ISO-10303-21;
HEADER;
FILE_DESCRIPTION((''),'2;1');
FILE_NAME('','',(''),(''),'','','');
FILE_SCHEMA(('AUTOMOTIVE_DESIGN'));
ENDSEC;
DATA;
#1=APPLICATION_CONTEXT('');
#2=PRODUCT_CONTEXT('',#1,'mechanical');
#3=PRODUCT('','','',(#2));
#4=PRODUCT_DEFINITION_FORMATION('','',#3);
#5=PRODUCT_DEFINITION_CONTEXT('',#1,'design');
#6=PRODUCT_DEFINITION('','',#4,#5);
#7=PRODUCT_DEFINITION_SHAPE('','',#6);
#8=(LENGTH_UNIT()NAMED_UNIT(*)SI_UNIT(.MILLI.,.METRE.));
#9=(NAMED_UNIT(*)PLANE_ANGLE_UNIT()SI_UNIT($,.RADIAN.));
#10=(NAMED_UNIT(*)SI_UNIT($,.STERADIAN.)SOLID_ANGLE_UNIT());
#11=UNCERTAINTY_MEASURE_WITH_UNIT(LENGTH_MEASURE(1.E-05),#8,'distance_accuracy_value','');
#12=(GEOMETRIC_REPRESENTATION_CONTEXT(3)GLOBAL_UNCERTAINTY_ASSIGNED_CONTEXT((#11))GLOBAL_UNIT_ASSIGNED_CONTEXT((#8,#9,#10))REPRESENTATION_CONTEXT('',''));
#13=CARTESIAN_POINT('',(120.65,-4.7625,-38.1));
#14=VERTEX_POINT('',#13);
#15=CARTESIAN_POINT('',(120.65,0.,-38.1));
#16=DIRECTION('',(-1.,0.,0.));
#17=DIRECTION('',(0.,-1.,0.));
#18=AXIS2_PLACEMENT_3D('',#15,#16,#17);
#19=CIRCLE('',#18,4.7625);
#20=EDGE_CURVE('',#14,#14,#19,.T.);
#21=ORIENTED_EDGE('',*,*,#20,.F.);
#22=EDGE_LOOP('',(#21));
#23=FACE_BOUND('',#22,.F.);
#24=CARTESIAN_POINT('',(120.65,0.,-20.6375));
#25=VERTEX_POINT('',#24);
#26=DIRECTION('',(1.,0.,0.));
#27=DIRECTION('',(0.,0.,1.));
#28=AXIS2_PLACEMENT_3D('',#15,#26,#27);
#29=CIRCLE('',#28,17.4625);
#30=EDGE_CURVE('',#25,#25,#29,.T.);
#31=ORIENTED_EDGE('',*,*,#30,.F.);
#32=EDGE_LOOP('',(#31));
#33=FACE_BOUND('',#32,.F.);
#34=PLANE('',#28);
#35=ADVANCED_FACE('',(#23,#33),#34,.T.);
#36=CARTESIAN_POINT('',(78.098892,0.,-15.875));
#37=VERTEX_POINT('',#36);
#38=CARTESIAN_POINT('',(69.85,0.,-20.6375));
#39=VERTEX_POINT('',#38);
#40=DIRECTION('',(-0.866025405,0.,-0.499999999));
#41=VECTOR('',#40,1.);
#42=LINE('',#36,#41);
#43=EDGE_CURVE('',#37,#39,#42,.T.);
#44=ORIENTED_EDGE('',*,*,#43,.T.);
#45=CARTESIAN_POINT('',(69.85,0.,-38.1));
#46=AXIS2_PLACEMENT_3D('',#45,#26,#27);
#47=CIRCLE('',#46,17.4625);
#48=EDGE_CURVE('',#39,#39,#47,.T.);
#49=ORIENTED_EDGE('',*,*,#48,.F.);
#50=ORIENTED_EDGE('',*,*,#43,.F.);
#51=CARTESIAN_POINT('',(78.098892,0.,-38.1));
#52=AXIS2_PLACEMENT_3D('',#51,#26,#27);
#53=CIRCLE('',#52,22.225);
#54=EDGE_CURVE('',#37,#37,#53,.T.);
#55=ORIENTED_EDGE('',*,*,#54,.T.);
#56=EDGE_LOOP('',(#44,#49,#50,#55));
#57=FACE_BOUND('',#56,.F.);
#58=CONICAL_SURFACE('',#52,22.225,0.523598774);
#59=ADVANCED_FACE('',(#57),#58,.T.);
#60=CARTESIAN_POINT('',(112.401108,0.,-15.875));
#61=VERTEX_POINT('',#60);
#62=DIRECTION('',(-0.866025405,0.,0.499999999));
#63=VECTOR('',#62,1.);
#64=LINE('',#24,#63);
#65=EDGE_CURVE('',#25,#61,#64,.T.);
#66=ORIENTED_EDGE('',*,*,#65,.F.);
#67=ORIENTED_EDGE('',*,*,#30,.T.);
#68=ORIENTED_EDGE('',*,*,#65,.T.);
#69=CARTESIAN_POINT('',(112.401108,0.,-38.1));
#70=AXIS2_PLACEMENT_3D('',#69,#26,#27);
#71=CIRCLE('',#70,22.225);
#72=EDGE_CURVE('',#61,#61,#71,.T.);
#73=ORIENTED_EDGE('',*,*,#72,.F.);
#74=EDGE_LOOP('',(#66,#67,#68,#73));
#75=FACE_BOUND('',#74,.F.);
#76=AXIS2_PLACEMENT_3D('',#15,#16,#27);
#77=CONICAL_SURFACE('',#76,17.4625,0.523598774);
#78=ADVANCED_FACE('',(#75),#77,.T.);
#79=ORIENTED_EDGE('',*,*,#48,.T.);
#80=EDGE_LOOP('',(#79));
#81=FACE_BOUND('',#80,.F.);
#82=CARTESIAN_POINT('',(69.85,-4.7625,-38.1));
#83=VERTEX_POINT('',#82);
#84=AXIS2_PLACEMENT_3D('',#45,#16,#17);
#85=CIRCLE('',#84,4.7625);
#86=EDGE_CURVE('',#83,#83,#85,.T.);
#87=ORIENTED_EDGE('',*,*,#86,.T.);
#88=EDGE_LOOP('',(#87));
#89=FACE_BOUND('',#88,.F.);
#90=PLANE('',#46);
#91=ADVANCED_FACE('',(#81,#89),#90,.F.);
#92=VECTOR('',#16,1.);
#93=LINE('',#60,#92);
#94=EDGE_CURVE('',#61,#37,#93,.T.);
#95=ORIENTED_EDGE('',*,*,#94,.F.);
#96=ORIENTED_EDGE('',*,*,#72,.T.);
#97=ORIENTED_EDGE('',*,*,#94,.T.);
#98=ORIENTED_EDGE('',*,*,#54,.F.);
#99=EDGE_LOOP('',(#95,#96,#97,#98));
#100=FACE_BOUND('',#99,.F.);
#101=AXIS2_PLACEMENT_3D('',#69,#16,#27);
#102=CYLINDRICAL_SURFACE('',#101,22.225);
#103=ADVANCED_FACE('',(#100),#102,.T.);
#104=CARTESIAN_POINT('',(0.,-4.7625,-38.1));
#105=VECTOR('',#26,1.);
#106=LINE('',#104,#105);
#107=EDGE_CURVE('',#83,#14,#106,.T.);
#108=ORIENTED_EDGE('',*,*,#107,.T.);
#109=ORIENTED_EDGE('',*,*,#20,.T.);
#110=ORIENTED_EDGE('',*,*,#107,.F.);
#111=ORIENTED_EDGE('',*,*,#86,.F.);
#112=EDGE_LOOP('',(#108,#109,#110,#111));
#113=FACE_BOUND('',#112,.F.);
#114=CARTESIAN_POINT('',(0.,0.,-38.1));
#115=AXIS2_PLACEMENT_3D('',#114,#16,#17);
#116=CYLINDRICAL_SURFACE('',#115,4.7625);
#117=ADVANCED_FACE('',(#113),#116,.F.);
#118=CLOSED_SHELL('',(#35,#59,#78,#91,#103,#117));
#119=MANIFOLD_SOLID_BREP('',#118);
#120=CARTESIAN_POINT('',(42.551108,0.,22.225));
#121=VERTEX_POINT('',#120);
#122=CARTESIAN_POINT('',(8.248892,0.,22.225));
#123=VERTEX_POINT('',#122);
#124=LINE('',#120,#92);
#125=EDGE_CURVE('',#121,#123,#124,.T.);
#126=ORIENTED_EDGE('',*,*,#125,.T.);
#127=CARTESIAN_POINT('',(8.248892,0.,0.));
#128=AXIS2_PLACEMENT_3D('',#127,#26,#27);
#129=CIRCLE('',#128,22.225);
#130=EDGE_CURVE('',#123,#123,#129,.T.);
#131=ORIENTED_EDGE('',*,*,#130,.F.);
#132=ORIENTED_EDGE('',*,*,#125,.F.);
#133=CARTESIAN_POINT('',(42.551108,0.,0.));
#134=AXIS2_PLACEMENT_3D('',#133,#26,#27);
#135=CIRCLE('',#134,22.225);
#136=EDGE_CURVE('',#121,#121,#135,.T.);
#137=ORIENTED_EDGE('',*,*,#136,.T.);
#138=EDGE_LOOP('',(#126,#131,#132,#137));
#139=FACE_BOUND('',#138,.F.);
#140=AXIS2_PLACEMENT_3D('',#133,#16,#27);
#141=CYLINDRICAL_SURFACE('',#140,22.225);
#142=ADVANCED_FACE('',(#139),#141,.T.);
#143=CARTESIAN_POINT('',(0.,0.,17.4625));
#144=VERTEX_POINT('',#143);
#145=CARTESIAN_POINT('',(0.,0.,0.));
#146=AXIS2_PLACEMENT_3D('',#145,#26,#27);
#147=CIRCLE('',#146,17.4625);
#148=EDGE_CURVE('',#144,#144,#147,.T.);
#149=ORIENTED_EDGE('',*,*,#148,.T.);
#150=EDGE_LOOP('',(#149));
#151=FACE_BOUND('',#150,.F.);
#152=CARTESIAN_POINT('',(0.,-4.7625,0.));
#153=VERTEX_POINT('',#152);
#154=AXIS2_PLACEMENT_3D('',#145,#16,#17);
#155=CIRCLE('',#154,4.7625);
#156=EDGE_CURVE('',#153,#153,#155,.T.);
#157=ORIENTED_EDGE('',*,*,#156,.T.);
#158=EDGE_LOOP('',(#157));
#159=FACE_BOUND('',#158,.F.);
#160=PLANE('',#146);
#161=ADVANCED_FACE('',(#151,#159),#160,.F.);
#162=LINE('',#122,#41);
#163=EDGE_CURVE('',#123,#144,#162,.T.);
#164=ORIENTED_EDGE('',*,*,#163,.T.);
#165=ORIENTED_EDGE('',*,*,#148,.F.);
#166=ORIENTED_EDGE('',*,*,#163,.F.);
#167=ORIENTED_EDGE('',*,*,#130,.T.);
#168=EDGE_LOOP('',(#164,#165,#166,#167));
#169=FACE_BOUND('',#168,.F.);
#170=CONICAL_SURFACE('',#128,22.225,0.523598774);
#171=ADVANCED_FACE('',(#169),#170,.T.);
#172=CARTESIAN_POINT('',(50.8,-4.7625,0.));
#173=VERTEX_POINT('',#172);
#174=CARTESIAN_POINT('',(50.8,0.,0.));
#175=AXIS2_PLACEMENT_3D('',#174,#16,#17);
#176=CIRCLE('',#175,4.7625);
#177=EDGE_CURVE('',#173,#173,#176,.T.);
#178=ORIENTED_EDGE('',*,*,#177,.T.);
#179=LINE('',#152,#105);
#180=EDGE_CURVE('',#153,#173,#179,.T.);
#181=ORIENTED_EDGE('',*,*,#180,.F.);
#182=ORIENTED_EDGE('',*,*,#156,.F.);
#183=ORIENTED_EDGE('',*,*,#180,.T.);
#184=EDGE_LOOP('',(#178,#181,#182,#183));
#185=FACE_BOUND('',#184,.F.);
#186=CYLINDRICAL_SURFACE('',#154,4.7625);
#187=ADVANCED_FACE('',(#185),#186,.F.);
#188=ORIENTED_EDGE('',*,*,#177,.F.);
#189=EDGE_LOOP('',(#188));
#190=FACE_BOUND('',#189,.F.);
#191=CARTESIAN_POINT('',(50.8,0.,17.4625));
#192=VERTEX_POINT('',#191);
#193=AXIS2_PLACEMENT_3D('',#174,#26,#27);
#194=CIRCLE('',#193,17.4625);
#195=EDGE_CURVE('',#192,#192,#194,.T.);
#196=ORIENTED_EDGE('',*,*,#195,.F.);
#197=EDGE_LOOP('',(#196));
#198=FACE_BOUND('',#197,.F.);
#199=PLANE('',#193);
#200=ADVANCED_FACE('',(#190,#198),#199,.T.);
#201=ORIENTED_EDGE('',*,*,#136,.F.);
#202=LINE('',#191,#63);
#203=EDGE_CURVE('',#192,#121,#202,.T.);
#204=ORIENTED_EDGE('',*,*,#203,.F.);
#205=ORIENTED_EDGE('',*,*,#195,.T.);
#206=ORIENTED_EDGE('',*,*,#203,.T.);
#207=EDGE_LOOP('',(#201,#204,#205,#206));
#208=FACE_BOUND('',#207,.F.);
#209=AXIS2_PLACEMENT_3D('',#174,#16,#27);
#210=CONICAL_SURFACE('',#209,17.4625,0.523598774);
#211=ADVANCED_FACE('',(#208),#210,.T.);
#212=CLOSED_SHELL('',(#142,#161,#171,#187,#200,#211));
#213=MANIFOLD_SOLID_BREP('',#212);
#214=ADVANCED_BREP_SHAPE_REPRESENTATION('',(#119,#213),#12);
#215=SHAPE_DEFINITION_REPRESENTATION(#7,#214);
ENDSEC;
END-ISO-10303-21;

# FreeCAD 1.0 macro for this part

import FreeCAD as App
import Part
import Sketcher

V = App.Vector
Q = App.Units.Quantity


def add_polygon(sketch, points):
    """Adds a closed chain of lines whose ends are joined by coincident constraints."""
    first, n = sketch.GeometryCount, len(points)
    for a, b in zip(points, points[1:] + points[:1]):
        sketch.addGeometry(Part.LineSegment(App.Vector(*a, 0), App.Vector(*b, 0)), False)
    for i in range(n):
        sketch.addConstraint(Sketcher.Constraint("Coincident", first + i, 2, first + (i + 1) % n, 1))

doc = App.newDocument("Part")
body = doc.addObject("PartDesign::Body", "Body")

sketch1 = body.newObject("Sketcher::SketchObject", "Sketch")
sketch1.AttachmentSupport = (doc.getObject("XZ_Plane"), [""])
sketch1.MapMode = "FlatFace"
add_polygon(sketch1, [(0, 17), (0, 0), (51, 0), (51, 17), (43, 22), (8, 22)])
sketch1.addConstraint(Sketcher.Constraint("Vertical", 0))
sketch1.addConstraint(Sketcher.Constraint("Horizontal", 1))
sketch1.addConstraint(Sketcher.Constraint("Vertical", 2))
sketch1.addConstraint(Sketcher.Constraint("Horizontal", 4))
sketch1.addConstraint(Sketcher.Constraint("Coincident", 0, 2, -1, 1))
sketch1.addConstraint(Sketcher.Constraint("Horizontal", 2, 2, 5, 2))
sketch1.addConstraint(Sketcher.Constraint("Equal", 3, 5))
sketch1.addConstraint(Sketcher.Constraint("DistanceX", 1, 1, 1, 2, Q("2 in")))
sketch1.addConstraint(Sketcher.Constraint("Angle", 3, Q("150 deg")))
sketch1.addConstraint(Sketcher.Constraint("DistanceY", 0, 2, 0, 1, Q("0.6875 in")))
sketch1.addConstraint(Sketcher.Constraint("Distance", 3, Q("0.375 in")))
revolution = body.newObject("PartDesign::Revolution", "Revolution")
revolution.Profile = sketch1
revolution.ReferenceAxis = (sketch1, ["H_Axis"])
revolution.Angle = 360
body2 = doc.addObject("PartDesign::Body", "Body001")

sketch2 = body2.newObject("Sketcher::SketchObject", "Sketch001")
sketch2.AttachmentSupport = (doc.getObject("XZ_Plane001"), [""])
sketch2.MapMode = "FlatFace"
add_polygon(sketch2, [(70, -21), (70, -38), (121, -38), (121, -21), (112, -16), (78, -16)])
sketch2.addGeometry(Part.LineSegment(V(70, -38, 0), V(121, -38, 0)), True)
sketch2.addConstraint(Sketcher.Constraint("Vertical", 0))
sketch2.addConstraint(Sketcher.Constraint("Horizontal", 1))
sketch2.addConstraint(Sketcher.Constraint("Vertical", 2))
sketch2.addConstraint(Sketcher.Constraint("Horizontal", 4))
sketch2.addConstraint(Sketcher.Constraint("Horizontal", 6))
sketch2.addConstraint(Sketcher.Constraint("Coincident", 6, 1, 0, 2))
sketch2.addConstraint(Sketcher.Constraint("Horizontal", 2, 2, 5, 2))
sketch2.addConstraint(Sketcher.Constraint("Vertical", 2, 2, 6, 2))
sketch2.addConstraint(Sketcher.Constraint("Equal", 3, 5))
sketch2.addConstraint(Sketcher.Constraint("DistanceX", 1, 1, 1, 2, Q("2 in")))
sketch2.addConstraint(Sketcher.Constraint("Angle", 3, Q("150 deg")))
sketch2.addConstraint(Sketcher.Constraint("DistanceY", 0, 2, -1, 1, Q("1.5 in")))
sketch2.addConstraint(Sketcher.Constraint("DistanceY", 0, 2, 0, 1, Q("0.6875 in")))
sketch2.addConstraint(Sketcher.Constraint("DistanceX", -1, 1, 0, 2, Q("2.75 in")))
sketch2.addConstraint(Sketcher.Constraint("Distance", 3, Q("0.375 in")))
revolution2 = body2.newObject("PartDesign::Revolution", "Revolution001")
revolution2.Profile = sketch2
revolution2.ReferenceAxis = (sketch2, ["Axis0"])
revolution2.Angle = 360
body3 = doc.addObject("PartDesign::Body", "Body002")
body3.AllowCompound = True

sketch3 = body3.newObject("Sketcher::SketchObject", "Sketch002")
sketch3.AttachmentSupport = (doc.getObject("YZ_Plane002"), [""])
sketch3.MapMode = "FlatFace"
sketch3.addGeometry(Part.Circle(V(0, 0, 0), V(0, 0, 1), 4.8), False)
sketch3.addGeometry(Part.Circle(V(0, -38.1, 0), V(0, 0, 1), 4.8), False)
sketch3.addConstraint(Sketcher.Constraint("Coincident", 0, 3, -1, 1))
sketch3.addConstraint(Sketcher.Constraint("Equal", 0, 1))
sketch3.addConstraint(Sketcher.Constraint("PointOnObject", 1, 3, -2))
sketch3.addConstraint(Sketcher.Constraint("Diameter", 0, Q("0.375 in")))
sketch3.addConstraint(Sketcher.Constraint("DistanceY", 1, 3, -1, 1, Q("1.5 in")))
pad1 = body3.newObject("PartDesign::Pad", "Pad")
pad1.Profile = sketch3
pad1.Length = 120.651
doc.recompute()

body4 = doc.addObject("PartDesign::Body", "Body003")
body4.BaseFeature = body3
boolean = body.newObject("PartDesign::Boolean", "Boolean")
boolean.Type = "Cut"
boolean.addObjects([body4])
doc.recompute()

boolean2 = body2.newObject("PartDesign::Boolean", "Boolean001")
boolean2.Type = "Cut"
boolean2.addObjects([body3])

doc.recompute()
